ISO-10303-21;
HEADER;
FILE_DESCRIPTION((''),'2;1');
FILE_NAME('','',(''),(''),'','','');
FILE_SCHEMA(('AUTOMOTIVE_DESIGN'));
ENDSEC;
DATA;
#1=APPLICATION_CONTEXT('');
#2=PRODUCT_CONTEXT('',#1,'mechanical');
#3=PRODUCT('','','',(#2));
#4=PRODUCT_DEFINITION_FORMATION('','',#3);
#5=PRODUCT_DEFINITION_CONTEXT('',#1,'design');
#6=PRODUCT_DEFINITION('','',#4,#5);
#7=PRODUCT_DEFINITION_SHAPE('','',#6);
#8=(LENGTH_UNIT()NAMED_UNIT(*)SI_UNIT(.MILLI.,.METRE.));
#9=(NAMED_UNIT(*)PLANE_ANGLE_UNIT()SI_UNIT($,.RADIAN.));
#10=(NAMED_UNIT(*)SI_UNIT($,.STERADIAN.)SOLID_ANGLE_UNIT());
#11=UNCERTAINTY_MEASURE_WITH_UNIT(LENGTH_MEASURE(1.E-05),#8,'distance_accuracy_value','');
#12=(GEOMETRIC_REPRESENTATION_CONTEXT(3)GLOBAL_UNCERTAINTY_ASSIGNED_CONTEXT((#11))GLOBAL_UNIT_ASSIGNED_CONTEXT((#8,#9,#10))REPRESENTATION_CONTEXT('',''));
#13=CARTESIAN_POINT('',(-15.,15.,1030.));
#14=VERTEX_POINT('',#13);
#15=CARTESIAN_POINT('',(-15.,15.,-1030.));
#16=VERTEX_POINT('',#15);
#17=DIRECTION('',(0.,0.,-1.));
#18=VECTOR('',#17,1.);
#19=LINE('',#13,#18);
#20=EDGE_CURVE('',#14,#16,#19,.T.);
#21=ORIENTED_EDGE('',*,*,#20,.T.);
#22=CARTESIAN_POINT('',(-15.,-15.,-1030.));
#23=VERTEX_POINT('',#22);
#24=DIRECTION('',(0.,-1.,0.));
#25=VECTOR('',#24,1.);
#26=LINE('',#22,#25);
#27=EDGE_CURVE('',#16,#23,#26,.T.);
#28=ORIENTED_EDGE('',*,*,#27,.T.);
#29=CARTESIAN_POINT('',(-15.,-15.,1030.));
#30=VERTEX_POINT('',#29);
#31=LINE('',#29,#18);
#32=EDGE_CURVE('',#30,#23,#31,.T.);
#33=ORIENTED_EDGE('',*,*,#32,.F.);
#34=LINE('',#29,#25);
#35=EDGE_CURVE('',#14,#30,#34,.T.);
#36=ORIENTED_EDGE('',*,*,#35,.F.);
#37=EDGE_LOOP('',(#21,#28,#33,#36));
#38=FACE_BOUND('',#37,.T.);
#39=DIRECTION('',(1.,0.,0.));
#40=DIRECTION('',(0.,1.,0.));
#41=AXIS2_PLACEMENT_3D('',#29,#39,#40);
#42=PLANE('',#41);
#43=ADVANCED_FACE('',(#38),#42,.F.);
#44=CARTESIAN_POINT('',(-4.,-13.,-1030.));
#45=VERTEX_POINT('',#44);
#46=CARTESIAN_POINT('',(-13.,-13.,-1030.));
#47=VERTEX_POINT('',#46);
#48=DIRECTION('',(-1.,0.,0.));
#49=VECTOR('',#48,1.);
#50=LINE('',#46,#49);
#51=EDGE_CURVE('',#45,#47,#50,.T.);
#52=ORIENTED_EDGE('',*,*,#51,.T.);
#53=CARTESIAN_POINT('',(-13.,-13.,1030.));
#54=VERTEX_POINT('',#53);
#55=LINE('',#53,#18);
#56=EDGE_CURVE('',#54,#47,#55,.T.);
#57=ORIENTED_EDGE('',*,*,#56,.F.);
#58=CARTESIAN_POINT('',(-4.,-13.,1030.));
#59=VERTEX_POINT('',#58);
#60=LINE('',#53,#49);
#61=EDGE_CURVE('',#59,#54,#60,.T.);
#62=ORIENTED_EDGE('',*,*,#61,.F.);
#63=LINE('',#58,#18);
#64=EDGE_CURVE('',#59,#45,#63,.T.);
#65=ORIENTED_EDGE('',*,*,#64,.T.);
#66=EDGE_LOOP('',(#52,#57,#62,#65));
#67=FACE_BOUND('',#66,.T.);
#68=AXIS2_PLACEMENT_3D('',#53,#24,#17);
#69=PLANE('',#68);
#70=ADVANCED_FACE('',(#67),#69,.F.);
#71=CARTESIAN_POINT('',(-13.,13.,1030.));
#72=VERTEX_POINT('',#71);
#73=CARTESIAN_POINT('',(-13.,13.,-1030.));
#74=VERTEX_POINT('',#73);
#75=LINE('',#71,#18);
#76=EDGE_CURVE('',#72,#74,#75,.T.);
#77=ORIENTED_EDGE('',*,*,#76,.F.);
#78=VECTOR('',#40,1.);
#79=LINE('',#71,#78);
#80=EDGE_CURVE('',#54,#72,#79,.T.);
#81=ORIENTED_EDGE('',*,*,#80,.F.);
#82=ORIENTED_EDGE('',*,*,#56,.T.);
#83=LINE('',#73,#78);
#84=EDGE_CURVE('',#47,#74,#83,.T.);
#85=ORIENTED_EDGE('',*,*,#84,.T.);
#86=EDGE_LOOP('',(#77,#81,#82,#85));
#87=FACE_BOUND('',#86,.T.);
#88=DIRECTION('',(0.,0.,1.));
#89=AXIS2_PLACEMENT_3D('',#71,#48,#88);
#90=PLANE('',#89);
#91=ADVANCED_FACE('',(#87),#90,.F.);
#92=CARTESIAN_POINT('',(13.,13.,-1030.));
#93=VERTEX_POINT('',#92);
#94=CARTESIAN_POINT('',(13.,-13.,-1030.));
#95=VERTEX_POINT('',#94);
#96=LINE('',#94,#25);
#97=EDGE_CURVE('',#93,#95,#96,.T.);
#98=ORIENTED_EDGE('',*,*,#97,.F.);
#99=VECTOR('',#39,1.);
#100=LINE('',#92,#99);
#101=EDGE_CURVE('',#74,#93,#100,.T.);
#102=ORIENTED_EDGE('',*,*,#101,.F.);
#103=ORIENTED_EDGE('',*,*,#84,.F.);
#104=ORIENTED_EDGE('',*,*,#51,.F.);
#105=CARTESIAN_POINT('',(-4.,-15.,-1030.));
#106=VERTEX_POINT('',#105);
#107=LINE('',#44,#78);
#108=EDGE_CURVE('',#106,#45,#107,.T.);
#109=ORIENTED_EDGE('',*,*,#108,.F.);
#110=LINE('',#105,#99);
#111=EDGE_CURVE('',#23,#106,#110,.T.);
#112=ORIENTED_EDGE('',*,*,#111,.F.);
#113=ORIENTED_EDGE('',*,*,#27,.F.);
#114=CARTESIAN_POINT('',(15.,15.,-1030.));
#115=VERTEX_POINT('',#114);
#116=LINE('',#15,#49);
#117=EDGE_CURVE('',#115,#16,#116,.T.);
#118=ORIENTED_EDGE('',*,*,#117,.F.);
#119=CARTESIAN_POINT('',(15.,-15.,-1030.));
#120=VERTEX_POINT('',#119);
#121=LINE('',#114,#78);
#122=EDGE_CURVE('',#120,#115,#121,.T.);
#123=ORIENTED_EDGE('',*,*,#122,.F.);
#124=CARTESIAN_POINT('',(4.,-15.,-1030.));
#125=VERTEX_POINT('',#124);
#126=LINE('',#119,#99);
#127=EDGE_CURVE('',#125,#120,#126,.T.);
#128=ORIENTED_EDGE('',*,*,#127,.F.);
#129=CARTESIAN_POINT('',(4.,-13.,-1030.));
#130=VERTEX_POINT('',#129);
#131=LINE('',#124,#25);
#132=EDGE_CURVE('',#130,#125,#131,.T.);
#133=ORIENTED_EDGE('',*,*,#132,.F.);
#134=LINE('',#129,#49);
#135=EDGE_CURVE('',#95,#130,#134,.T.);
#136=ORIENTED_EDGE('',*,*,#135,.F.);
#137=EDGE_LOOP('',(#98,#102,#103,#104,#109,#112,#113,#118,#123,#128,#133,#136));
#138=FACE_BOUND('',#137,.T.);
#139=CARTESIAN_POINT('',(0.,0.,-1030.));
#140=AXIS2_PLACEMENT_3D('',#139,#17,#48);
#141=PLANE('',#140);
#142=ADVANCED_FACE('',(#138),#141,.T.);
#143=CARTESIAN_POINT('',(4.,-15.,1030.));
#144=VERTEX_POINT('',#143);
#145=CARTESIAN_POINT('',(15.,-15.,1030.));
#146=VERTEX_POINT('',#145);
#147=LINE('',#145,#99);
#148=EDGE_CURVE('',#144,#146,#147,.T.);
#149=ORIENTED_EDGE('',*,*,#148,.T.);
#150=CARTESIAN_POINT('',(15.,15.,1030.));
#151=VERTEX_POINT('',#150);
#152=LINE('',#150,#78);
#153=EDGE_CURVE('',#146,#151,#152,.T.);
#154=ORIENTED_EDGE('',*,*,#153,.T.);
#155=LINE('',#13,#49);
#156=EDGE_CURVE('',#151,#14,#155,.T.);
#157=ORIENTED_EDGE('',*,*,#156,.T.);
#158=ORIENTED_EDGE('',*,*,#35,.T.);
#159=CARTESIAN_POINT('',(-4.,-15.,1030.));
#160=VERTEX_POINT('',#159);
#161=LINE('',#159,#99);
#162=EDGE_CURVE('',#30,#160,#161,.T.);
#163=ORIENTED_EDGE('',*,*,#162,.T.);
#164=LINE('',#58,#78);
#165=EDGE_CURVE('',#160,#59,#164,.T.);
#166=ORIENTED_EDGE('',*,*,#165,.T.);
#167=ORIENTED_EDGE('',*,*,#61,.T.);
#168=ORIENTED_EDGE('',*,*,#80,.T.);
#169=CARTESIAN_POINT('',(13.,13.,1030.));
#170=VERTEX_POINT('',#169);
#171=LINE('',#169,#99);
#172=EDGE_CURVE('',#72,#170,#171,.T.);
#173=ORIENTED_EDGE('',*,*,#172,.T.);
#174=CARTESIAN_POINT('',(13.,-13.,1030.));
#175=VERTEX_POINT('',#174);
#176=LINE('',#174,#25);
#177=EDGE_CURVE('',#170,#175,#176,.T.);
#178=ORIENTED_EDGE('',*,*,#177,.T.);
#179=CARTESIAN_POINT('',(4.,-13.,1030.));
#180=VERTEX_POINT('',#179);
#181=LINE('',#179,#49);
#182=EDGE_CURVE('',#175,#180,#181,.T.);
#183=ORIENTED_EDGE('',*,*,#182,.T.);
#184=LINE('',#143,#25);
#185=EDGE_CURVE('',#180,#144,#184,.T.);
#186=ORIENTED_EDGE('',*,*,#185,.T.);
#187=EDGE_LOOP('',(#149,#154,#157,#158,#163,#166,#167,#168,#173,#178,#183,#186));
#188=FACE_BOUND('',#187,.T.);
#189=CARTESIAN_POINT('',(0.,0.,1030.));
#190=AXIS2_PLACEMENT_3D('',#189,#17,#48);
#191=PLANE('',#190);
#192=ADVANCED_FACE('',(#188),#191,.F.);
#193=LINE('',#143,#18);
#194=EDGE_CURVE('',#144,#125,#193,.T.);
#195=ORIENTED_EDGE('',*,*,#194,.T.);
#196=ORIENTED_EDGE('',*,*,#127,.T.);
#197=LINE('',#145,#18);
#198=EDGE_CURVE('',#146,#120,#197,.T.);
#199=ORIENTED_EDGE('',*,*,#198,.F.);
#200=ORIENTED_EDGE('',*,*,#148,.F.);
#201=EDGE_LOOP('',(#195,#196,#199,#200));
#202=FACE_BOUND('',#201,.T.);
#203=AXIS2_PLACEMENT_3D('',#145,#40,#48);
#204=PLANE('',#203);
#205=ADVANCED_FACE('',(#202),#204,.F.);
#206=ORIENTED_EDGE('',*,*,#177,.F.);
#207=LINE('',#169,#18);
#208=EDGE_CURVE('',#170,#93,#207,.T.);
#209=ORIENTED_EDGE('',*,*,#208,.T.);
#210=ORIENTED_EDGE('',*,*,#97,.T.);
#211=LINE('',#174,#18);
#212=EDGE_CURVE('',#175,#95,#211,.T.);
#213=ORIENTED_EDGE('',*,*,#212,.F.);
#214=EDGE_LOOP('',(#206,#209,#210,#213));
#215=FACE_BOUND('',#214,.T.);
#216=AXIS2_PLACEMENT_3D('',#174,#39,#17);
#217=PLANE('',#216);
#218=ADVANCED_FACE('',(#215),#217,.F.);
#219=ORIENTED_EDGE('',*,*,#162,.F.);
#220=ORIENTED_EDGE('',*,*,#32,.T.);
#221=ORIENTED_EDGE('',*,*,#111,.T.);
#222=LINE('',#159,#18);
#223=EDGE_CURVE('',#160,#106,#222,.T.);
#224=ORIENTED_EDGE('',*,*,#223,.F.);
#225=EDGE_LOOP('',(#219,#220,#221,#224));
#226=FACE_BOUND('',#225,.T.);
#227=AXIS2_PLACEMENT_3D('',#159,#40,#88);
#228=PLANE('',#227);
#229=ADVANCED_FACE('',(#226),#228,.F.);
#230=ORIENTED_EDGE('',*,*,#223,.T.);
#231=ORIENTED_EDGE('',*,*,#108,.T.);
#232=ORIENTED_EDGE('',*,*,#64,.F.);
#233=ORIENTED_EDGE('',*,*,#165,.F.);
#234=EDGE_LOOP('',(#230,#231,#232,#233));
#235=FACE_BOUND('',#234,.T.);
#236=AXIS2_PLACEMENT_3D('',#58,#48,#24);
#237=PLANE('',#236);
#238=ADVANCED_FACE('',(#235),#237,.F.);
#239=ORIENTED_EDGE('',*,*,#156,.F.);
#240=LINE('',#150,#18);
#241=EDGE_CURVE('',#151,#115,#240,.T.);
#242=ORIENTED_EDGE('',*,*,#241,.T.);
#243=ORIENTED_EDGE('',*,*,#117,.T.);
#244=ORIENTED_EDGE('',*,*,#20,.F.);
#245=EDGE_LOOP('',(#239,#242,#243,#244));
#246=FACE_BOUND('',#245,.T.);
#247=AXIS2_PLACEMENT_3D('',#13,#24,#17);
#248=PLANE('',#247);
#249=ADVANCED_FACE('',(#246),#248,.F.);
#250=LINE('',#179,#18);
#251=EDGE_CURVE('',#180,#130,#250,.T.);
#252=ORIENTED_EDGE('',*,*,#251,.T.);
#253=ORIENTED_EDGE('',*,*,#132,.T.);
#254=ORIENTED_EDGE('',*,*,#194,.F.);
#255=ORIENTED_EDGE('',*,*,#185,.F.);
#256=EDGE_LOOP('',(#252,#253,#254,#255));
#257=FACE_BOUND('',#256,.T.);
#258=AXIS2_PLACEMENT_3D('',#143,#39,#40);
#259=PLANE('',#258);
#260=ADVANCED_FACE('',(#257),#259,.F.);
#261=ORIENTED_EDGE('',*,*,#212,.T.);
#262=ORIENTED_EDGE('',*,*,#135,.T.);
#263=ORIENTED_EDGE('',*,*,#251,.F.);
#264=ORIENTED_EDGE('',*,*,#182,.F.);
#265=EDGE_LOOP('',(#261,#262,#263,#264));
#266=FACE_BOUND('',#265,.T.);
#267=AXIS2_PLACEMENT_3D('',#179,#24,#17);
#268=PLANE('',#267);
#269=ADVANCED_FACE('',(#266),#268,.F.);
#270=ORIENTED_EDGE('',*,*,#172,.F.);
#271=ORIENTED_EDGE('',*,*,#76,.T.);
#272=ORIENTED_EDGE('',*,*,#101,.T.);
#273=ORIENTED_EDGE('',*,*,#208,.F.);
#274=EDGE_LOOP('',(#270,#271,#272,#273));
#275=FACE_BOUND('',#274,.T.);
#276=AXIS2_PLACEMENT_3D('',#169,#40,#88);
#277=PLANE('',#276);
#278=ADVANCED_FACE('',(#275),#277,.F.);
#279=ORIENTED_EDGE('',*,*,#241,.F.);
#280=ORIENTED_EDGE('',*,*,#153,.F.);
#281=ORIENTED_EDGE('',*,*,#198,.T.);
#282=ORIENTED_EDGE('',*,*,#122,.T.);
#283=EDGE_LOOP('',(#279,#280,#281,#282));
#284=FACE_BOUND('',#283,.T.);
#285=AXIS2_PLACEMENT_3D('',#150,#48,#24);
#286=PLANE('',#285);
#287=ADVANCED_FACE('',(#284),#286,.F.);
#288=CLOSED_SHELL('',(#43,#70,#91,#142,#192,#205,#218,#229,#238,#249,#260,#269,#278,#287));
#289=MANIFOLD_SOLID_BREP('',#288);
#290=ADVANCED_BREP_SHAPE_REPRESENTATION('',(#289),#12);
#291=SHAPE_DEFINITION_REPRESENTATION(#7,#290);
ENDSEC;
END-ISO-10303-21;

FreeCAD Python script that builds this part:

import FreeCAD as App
import Part
import Sketcher
from FreeCAD import Vector
Q = App.Units.Quantity


def add_polygon(sketch, points):
    """Adds a closed chain of lines whose ends are joined by coincident constraints."""
    first, n = sketch.GeometryCount, len(points)
    for a, b in zip(points, points[1:] + points[:1]):
        sketch.addGeometry(Part.LineSegment(App.Vector(*a, 0), App.Vector(*b, 0)), False)
    for i in range(n):
        sketch.addConstraint(Sketcher.Constraint("Coincident", first + i, 2, first + (i + 1) % n, 1))

doc = App.newDocument("Part")
params = doc.addObject("Spreadsheet::Sheet", "Params")
for row, (alias, value) in enumerate([
    ("sketch1_width", "9 mm"),
    ("sketch1_width2", "26 mm"),
    ("sketch1_width3", "11 mm"),
    ("pad1_length", "2060 mm"),
], start=1):
    params.set(f"A{row}", alias)
    params.set(f"B{row}", "=" + value)
    params.setAlias(f"B{row}", alias)

body = doc.addObject("PartDesign::Body", "Body")

# Sketch on XY plane
sketch1 = doc.addObject("Sketcher::SketchObject", "Sketch")
body.addObject(sketch1)
sketch1.AttachmentSupport = (doc.XY_Plane, [""])
sketch1.MapMode = "FlatFace"
add_polygon(sketch1, [(-4, -15), (-4, -13), (-13, -13), (-13, 13), (13, 13), (13, -13), (4, -13), (4, -15), (15, -15), (15, 15), (-15, 15), (-15, -15)])  # lines 0-11
sketch1.addConstraint([
    Sketcher.Constraint("Vertical", 0),
    Sketcher.Constraint("Horizontal", 1),
    Sketcher.Constraint("Vertical", 2),
    Sketcher.Constraint("Horizontal", 3),
    Sketcher.Constraint("Vertical", 4),
    Sketcher.Constraint("Horizontal", 5),
    Sketcher.Constraint("Vertical", 6),
    Sketcher.Constraint("Horizontal", 7),
    Sketcher.Constraint("Vertical", 8),
    Sketcher.Constraint("Horizontal", 9),
    Sketcher.Constraint("Vertical", 10),
    Sketcher.Constraint("Horizontal", 11),
    Sketcher.Constraint("Symmetric", 1, 2, 3, 2, -1, 1),
    Sketcher.Constraint("Symmetric", 7, 2, 9, 2, -1, 1),
    Sketcher.Constraint("Symmetric", 0, 2, 5, 2, -2),
    Sketcher.Constraint("Horizontal", 7, 2, 10, 2),
    Sketcher.Constraint("Equal", 3, 2),
    Sketcher.Constraint("Equal", 9, 8),
    Sketcher.Constraint("DistanceX", 1, 2, 1, 1, Q("9 mm")),
    Sketcher.Constraint("DistanceX", 3, 1, 3, 2, Q("26 mm")),
    Sketcher.Constraint("DistanceX", 7, 1, 7, 2, Q("11 mm")),
])
sketch1.setExpression("Constraints[30]", "Params.sketch1_width")
sketch1.setExpression("Constraints[31]", "Params.sketch1_width2")
sketch1.setExpression("Constraints[32]", "Params.sketch1_width3")
pad1 = doc.addObject("PartDesign::Pad", "Pad")
body.addObject(pad1)
pad1.Profile = sketch1
pad1.setExpression("Length", "Params.pad1_length")
pad1.Midplane = True

doc.recompute()
